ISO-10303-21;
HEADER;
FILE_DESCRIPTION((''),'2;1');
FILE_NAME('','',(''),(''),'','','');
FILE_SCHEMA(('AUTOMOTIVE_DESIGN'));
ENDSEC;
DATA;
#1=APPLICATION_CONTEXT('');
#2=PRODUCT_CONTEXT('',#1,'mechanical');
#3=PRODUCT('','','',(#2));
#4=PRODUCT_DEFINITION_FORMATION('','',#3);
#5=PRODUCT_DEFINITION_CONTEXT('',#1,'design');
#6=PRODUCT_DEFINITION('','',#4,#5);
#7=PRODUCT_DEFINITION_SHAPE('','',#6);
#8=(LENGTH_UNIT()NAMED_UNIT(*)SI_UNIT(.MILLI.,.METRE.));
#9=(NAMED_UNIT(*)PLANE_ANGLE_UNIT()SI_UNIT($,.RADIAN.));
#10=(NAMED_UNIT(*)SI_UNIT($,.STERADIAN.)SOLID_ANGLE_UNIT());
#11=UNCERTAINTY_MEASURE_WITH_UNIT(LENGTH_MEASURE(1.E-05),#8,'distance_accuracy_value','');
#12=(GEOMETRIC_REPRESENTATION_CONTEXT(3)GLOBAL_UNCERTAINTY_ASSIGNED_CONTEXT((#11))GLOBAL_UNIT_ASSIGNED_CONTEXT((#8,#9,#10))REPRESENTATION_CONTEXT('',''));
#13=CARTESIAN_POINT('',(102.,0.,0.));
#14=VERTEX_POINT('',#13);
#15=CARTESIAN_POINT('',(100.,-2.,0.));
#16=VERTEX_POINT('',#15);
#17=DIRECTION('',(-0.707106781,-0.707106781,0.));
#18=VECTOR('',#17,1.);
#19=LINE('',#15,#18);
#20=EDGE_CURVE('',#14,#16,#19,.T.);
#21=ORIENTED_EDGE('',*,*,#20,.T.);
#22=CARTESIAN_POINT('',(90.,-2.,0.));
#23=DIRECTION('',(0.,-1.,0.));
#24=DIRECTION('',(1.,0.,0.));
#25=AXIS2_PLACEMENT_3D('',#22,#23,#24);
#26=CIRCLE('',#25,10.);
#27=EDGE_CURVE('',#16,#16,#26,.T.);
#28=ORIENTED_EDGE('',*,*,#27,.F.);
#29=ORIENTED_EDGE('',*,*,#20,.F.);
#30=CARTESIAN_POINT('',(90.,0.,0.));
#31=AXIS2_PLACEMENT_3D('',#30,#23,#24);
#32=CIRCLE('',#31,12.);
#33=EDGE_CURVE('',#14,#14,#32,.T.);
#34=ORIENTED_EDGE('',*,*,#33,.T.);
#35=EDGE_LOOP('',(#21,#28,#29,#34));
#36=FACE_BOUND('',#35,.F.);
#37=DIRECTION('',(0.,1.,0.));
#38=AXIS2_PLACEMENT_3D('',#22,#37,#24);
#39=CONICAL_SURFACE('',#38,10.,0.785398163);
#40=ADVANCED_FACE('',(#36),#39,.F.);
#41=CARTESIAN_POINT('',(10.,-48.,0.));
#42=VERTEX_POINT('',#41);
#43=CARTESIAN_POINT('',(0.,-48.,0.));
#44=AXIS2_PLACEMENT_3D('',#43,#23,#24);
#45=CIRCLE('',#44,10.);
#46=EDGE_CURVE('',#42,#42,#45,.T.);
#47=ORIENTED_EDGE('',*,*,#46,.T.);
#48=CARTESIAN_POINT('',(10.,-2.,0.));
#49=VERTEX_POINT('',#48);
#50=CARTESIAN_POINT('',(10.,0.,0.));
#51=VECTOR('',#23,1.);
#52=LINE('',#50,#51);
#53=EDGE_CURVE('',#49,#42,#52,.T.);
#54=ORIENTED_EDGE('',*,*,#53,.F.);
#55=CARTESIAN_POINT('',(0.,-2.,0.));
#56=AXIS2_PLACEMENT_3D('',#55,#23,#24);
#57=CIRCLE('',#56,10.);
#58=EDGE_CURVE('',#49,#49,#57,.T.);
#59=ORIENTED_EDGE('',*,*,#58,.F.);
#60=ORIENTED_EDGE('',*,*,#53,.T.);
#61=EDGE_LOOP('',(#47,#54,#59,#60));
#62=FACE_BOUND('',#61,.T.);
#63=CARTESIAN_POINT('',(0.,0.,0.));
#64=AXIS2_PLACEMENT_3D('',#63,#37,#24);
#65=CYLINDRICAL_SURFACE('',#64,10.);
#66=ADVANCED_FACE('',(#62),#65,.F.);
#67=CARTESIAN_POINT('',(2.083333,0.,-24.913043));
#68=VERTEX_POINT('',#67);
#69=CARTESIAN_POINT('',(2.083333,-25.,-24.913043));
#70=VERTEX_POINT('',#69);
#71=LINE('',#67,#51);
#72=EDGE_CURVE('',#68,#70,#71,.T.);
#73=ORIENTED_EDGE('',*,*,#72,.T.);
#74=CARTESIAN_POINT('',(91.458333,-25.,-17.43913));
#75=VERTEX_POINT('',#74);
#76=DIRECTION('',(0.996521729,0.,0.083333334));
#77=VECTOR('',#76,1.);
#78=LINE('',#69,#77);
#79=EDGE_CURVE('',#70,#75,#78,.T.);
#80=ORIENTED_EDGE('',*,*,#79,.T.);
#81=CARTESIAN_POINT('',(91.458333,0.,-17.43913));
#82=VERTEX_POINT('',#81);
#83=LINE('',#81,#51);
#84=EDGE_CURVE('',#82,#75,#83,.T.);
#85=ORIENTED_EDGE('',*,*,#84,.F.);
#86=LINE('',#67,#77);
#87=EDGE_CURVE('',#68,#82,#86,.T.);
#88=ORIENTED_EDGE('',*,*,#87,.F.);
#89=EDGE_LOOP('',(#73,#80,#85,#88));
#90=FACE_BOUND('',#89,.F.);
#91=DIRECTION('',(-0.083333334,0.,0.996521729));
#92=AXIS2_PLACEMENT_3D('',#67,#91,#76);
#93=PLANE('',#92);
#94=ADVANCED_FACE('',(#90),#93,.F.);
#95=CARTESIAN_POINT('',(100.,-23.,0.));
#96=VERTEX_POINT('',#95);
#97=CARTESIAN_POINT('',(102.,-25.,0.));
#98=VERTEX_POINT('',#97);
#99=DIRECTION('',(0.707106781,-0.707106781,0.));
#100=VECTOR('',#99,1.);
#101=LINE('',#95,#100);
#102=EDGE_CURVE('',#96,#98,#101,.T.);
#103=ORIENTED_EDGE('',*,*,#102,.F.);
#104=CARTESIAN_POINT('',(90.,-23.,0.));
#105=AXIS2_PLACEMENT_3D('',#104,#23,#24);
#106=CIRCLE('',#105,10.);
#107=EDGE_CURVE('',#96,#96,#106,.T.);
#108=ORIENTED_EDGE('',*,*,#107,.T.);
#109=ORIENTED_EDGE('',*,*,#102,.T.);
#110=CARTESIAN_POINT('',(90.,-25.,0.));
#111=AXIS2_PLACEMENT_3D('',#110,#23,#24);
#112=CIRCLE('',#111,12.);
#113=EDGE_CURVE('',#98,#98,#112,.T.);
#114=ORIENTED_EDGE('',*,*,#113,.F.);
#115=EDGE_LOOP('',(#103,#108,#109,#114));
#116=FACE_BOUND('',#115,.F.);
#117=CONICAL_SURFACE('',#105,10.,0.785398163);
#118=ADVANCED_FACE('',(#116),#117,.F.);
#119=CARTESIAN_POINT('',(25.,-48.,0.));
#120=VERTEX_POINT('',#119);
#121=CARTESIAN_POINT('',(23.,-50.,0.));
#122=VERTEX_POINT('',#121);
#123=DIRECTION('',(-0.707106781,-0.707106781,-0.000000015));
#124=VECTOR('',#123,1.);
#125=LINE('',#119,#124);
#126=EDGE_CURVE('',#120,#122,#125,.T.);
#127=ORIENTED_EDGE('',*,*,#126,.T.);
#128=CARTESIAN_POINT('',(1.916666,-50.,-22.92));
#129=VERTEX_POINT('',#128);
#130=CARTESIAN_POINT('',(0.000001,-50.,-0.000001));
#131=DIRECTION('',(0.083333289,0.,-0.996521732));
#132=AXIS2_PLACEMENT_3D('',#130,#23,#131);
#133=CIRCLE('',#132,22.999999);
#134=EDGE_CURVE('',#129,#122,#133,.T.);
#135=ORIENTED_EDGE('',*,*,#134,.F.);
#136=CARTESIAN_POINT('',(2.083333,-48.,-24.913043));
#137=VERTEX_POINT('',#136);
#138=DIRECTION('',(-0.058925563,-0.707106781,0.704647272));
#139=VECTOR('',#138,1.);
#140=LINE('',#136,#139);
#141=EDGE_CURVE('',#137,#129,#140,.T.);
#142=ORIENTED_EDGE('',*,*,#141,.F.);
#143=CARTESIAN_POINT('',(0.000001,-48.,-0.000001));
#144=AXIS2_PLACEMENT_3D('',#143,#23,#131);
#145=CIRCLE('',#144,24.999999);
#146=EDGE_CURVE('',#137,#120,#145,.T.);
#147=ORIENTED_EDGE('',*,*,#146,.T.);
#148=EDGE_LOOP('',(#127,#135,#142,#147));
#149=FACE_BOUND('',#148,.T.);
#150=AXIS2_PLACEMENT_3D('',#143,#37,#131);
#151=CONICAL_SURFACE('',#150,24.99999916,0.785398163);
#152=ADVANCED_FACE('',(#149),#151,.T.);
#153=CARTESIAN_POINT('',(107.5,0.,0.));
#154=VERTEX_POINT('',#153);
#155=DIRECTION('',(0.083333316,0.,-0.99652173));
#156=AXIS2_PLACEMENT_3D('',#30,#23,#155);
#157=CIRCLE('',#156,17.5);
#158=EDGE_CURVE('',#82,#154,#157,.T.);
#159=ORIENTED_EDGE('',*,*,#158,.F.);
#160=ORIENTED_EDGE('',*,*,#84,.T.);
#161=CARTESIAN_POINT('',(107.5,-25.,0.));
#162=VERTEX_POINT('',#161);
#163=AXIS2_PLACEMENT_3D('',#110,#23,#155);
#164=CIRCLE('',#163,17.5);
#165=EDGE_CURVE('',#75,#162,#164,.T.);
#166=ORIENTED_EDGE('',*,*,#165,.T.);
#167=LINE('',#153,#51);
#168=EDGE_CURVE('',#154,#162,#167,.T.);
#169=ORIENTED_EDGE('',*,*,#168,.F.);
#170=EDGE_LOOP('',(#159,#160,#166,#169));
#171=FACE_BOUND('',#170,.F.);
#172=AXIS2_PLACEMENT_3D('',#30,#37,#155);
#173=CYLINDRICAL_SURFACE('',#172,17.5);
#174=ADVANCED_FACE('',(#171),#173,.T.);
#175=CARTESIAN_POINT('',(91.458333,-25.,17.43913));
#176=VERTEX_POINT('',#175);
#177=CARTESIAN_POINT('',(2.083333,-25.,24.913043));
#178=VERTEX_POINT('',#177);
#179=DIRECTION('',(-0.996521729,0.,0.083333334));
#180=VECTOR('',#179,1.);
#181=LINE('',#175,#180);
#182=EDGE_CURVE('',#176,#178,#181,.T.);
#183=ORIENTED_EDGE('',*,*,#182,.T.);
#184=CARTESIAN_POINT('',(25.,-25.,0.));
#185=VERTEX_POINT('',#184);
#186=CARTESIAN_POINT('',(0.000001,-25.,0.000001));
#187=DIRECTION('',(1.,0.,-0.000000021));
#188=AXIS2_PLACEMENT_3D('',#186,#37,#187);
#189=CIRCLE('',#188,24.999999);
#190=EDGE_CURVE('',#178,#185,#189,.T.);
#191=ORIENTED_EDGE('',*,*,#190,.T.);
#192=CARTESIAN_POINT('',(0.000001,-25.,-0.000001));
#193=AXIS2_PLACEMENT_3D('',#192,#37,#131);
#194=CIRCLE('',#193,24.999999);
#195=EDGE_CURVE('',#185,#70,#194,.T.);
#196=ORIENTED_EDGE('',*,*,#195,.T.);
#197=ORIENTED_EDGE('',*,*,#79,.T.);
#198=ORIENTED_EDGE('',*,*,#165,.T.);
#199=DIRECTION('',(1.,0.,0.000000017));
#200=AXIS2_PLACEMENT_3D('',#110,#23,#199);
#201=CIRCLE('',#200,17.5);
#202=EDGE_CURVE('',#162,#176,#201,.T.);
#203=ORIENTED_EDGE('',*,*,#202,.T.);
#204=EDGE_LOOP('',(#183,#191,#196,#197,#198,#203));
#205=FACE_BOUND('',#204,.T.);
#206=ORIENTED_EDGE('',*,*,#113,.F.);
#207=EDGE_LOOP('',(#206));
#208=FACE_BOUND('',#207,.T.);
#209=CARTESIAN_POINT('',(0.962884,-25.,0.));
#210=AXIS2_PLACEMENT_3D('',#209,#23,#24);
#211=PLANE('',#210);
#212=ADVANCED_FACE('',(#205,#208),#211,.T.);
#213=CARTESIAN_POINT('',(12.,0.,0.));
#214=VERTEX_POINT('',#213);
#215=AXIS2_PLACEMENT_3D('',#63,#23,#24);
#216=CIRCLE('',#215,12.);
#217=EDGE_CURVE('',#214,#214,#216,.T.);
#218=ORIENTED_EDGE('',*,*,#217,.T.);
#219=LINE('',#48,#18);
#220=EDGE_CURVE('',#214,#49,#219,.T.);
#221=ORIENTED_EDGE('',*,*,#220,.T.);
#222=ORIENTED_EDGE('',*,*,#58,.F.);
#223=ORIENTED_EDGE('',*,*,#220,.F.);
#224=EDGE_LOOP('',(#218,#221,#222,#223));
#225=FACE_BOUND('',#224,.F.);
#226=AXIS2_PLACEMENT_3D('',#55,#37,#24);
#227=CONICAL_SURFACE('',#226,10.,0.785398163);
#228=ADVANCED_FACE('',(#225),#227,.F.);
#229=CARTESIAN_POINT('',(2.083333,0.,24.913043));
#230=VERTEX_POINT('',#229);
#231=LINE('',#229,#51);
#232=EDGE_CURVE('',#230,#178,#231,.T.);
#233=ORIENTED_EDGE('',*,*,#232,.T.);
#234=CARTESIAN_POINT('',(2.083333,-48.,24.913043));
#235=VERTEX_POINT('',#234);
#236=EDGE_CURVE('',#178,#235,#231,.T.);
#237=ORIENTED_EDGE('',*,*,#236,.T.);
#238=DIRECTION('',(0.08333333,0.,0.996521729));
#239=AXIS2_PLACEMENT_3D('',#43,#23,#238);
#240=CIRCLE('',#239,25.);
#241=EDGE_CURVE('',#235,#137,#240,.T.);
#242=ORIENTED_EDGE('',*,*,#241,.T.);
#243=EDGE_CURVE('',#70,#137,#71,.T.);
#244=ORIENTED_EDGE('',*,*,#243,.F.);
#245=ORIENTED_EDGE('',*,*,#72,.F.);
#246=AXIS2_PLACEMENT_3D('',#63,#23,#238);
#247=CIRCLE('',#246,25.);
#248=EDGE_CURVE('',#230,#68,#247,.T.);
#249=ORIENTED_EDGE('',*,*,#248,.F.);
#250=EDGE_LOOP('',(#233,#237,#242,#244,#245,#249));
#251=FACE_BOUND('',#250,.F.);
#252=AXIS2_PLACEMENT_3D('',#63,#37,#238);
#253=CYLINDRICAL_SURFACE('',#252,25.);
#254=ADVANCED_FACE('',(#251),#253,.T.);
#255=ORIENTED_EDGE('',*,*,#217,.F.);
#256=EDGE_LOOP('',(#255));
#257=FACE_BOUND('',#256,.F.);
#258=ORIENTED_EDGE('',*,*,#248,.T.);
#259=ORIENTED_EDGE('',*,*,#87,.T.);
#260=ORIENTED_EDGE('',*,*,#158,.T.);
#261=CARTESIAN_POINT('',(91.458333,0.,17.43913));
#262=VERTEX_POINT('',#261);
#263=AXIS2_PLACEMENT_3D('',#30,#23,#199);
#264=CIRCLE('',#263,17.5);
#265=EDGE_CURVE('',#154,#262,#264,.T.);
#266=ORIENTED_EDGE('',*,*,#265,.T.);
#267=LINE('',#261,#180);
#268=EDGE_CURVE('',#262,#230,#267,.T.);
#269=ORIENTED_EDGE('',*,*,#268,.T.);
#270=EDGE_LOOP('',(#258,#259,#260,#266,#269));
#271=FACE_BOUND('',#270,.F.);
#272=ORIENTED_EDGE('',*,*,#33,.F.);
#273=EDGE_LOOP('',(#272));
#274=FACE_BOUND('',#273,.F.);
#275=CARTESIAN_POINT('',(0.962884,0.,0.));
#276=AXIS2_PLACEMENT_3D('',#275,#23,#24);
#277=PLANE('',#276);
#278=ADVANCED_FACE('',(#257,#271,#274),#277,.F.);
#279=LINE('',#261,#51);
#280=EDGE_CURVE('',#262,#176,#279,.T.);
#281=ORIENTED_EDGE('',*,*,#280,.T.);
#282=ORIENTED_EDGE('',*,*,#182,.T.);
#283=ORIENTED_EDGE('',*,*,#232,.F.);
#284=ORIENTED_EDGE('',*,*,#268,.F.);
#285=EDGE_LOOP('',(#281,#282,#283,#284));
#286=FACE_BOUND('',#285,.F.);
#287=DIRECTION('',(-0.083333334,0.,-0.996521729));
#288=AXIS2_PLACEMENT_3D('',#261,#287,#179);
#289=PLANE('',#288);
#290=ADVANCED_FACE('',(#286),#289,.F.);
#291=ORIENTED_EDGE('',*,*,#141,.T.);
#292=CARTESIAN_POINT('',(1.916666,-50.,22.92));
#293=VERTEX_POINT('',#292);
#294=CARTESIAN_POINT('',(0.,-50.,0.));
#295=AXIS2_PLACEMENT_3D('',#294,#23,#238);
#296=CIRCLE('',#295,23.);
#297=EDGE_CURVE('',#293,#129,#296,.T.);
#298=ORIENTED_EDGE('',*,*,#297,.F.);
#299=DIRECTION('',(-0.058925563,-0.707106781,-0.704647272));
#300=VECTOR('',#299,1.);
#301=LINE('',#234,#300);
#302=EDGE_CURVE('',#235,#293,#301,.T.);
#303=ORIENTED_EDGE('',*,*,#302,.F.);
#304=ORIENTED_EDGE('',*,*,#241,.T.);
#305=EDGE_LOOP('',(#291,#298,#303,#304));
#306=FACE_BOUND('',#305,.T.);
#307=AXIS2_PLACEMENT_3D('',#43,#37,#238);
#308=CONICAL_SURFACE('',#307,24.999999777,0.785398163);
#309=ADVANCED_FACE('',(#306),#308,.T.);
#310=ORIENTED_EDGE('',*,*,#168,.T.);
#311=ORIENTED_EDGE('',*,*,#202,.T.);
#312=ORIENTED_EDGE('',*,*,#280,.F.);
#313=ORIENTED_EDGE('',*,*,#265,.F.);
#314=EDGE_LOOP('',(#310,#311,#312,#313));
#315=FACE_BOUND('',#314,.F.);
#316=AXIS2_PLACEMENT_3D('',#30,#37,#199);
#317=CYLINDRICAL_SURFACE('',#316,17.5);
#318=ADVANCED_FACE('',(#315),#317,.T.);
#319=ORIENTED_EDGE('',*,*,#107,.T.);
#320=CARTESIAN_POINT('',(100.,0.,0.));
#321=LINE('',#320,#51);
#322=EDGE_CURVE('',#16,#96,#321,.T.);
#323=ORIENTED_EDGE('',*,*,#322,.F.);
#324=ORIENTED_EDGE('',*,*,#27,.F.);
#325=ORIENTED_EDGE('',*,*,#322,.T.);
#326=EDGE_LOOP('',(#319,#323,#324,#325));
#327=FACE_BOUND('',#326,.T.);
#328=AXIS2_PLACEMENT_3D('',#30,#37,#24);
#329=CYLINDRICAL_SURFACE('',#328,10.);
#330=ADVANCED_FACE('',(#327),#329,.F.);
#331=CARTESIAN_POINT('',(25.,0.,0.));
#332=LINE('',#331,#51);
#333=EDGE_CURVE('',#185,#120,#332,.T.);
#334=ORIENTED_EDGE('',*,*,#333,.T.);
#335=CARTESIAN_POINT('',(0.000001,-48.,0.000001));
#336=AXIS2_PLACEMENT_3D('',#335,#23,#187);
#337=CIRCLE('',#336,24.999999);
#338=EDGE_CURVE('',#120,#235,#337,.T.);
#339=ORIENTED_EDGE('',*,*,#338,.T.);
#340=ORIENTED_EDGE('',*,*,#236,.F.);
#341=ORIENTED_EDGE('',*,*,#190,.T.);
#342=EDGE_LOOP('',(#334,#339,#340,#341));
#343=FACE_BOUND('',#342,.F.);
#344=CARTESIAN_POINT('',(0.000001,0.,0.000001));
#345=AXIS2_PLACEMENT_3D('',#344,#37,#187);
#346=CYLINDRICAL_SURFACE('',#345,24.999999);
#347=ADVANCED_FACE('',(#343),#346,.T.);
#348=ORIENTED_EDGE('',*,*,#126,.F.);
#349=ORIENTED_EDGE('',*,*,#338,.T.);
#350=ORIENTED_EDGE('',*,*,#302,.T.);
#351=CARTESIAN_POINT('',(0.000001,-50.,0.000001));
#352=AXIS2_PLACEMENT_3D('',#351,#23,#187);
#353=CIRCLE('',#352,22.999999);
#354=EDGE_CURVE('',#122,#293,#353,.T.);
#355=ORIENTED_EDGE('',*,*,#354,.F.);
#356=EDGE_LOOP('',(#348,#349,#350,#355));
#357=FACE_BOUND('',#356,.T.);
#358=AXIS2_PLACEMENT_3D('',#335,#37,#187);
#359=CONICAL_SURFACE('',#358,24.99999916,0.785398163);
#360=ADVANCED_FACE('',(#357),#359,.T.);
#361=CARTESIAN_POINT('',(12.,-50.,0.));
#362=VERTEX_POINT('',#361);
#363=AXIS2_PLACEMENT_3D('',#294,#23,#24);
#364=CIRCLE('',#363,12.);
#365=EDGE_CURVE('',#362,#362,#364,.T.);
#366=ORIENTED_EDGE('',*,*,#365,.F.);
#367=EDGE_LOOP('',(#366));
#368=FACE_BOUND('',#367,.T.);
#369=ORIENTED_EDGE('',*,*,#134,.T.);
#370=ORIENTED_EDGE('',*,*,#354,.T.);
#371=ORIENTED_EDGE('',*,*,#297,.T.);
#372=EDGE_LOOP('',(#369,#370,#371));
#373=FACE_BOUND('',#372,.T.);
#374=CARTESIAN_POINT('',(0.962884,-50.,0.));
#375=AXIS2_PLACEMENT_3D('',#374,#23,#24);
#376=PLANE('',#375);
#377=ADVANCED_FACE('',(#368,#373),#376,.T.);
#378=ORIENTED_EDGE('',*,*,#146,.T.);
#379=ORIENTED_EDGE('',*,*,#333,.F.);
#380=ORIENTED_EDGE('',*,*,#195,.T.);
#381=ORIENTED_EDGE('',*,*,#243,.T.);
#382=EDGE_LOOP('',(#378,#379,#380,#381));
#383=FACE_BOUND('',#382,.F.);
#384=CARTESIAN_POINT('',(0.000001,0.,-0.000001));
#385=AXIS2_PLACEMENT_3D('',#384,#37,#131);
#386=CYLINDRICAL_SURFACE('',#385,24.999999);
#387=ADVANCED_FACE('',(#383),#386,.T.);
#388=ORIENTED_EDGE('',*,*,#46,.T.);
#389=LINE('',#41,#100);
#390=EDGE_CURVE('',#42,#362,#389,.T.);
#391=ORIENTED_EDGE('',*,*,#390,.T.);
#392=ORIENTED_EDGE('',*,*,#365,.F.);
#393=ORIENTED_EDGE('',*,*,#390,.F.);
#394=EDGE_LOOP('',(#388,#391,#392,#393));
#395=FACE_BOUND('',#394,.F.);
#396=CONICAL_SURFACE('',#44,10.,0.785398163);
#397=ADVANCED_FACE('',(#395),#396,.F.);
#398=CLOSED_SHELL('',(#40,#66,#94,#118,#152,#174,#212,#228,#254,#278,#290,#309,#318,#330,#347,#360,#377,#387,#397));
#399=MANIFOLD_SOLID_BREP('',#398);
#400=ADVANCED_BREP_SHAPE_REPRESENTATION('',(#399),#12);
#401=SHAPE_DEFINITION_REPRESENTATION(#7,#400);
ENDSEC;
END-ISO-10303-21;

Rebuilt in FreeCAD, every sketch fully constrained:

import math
import FreeCAD as App
import Part
import Sketcher
from FreeCAD import Vector


def edges_at(feature, points):
    """Names of the edges that pass closest to the given points."""
    edges = feature.Shape.Edges
    near = lambda p: min(range(len(edges)), key=lambda i: edges[i].distToShape(Part.Vertex(*p))[0])
    return sorted({f"Edge{near(p) + 1}" for p in points})

doc = App.newDocument("Part")
params = doc.addObject("Spreadsheet::Sheet", "Params")
for row, (alias, value) in enumerate([
    ("sketch1_diameter", "20 mm"),
    ("sketch1_radius", "25 mm"),
    ("sketch1_radius2", "17.5 mm"),
    ("pad1_length", "25 mm"),
    ("sketch2_diameter", "20 mm"),
    ("sketch2_radius", "24.999999 mm"),
    ("pad2_length", "50 mm"),
    ("chamfer_size", "2 mm"),
    ("chamfer2_size", "2 mm"),
], start=1):
    params.set(f"A{row}", alias)
    params.set(f"B{row}", "=" + value)
    params.setAlias(f"B{row}", alias)

body = doc.addObject("PartDesign::Body", "Body")

# Sketch on XZ plane
sketch1 = body.newObject("Sketcher::SketchObject", "Sketch")
sketch1.AttachmentSupport = (doc.getObject("XZ_Plane"), [""])
sketch1.MapMode = "FlatFace"
sketch1.addGeometry([
    Part.ArcOfCircle(Part.Circle(Vector(0, 0, 0), Vector(0, 0, 1), 25), math.radians(85), math.radians(275)),  # 0
    Part.LineSegment(Vector(2, -25, 0), Vector(91, -17, 0)),  # 1
    Part.ArcOfCircle(Part.Circle(Vector(90, 0, 0), Vector(0, 0, 1), 18), math.radians(-85), math.radians(0)),  # 2
    Part.ArcOfCircle(Part.Circle(Vector(90, 0, 0), Vector(0, 0, 1), 18), math.radians(0), math.radians(85)),  # 3
    Part.LineSegment(Vector(91, 17, 0), Vector(2, 25, 0)),  # 4
    Part.Circle(Vector(0, 0, 0), Vector(0, 0, 1), 10),  # 5
    Part.Circle(Vector(90, 0, 0), Vector(0, 0, 1), 10),  # 6
], False)
sketch1.addConstraint([
    Sketcher.Constraint("Tangent", 0, 2, 1, 1),
    Sketcher.Constraint("Tangent", 1, 2, 2, 1),
    Sketcher.Constraint("Tangent", 2, 2, 3, 1),
    Sketcher.Constraint("Tangent", 3, 2, 4, 1),
    Sketcher.Constraint("Tangent", 4, 2, 0, 1),
    Sketcher.Constraint("Coincident", 0, 3, -1, 1),
    Sketcher.Constraint("Coincident", 5, 3, -1, 1),
    Sketcher.Constraint("Coincident", 6, 3, 2, 3),
    Sketcher.Constraint("Equal", 2, 3),
    Sketcher.Constraint("Equal", 5, 6),
    Sketcher.Constraint("PointOnObject", 2, 3, -1),
    Sketcher.Constraint("PointOnObject", 2, 2, -1),
    Sketcher.Constraint("Diameter", 5, 20.0),
    Sketcher.Constraint("Radius", 0, 25.0),
    Sketcher.Constraint("Radius", 2, 17.5),
    Sketcher.Constraint("DistanceX", -1, 1, 2, 3, 90.0),
])
sketch1.setExpression("Constraints[12]", "Params.sketch1_diameter")
sketch1.setExpression("Constraints[13]", "Params.sketch1_radius")
sketch1.setExpression("Constraints[14]", "Params.sketch1_radius2")
pad1 = body.newObject("PartDesign::Pad", "Pad")
pad1.Profile = sketch1
pad1.setExpression("Length", "Params.pad1_length")

# Sketch on XZ plane
sketch2 = body.newObject("Sketcher::SketchObject", "Sketch001")
sketch2.AttachmentSupport = (doc.getObject("XZ_Plane"), [""])
sketch2.MapMode = "FlatFace"
sketch2.addGeometry([
    Part.ArcOfCircle(Part.Circle(Vector(0, 0, 0), Vector(0, 0, 1), 25), math.radians(-85), math.radians(0)),
    Part.ArcOfCircle(Part.Circle(Vector(0, 0, 0), Vector(0, 0, 1), 25), math.radians(0), math.radians(85)),
    Part.ArcOfCircle(Part.Circle(Vector(0, 0, 0), Vector(0, 0, 1), 25), math.radians(85), math.radians(275)),
    Part.Circle(Vector(0, 0, 0), Vector(0, 0, 1), 10),
], False)
sketch2.addConstraint([
    Sketcher.Constraint("Tangent", 0, 2, 1, 1),
    Sketcher.Constraint("Tangent", 1, 2, 2, 1),
    Sketcher.Constraint("Tangent", 2, 2, 0, 1),
    Sketcher.Constraint("Coincident", 0, 3, -1, 1),
    Sketcher.Constraint("Coincident", 3, 3, -1, 1),
    Sketcher.Constraint("PointOnObject", 0, 2, -1),
    Sketcher.Constraint("Vertical", 1, 2, 2, 2),
    Sketcher.Constraint("Diameter", 3, 20.0),
    Sketcher.Constraint("Radius", 0, 24.999999),
    Sketcher.Constraint("DistanceX", -1, 1, 1, 2, 2.083333),
])
sketch2.setExpression("Constraints[7]", "Params.sketch2_diameter")
sketch2.setExpression("Constraints[8]", "Params.sketch2_radius")
pad2 = body.newObject("PartDesign::Pad", "Pad001")
pad2.Profile = sketch2
pad2.setExpression("Length", "Params.pad2_length")
doc.recompute()

chamfer = body.newObject("PartDesign::Chamfer", "Chamfer")
chamfer.Base = (pad2, edges_at(pad2, [(-25, -50, 0), (-10, -50, 0), (80, -25, 0)]))
chamfer.setExpression("Size", "Params.chamfer_size")
doc.recompute()

chamfer2 = body.newObject("PartDesign::Chamfer", "Chamfer001")
chamfer2.Base = (chamfer, edges_at(chamfer, [(80, 0, 0), (-10, 0, 0)]))
chamfer2.setExpression("Size", "Params.chamfer2_size")

doc.recompute()
